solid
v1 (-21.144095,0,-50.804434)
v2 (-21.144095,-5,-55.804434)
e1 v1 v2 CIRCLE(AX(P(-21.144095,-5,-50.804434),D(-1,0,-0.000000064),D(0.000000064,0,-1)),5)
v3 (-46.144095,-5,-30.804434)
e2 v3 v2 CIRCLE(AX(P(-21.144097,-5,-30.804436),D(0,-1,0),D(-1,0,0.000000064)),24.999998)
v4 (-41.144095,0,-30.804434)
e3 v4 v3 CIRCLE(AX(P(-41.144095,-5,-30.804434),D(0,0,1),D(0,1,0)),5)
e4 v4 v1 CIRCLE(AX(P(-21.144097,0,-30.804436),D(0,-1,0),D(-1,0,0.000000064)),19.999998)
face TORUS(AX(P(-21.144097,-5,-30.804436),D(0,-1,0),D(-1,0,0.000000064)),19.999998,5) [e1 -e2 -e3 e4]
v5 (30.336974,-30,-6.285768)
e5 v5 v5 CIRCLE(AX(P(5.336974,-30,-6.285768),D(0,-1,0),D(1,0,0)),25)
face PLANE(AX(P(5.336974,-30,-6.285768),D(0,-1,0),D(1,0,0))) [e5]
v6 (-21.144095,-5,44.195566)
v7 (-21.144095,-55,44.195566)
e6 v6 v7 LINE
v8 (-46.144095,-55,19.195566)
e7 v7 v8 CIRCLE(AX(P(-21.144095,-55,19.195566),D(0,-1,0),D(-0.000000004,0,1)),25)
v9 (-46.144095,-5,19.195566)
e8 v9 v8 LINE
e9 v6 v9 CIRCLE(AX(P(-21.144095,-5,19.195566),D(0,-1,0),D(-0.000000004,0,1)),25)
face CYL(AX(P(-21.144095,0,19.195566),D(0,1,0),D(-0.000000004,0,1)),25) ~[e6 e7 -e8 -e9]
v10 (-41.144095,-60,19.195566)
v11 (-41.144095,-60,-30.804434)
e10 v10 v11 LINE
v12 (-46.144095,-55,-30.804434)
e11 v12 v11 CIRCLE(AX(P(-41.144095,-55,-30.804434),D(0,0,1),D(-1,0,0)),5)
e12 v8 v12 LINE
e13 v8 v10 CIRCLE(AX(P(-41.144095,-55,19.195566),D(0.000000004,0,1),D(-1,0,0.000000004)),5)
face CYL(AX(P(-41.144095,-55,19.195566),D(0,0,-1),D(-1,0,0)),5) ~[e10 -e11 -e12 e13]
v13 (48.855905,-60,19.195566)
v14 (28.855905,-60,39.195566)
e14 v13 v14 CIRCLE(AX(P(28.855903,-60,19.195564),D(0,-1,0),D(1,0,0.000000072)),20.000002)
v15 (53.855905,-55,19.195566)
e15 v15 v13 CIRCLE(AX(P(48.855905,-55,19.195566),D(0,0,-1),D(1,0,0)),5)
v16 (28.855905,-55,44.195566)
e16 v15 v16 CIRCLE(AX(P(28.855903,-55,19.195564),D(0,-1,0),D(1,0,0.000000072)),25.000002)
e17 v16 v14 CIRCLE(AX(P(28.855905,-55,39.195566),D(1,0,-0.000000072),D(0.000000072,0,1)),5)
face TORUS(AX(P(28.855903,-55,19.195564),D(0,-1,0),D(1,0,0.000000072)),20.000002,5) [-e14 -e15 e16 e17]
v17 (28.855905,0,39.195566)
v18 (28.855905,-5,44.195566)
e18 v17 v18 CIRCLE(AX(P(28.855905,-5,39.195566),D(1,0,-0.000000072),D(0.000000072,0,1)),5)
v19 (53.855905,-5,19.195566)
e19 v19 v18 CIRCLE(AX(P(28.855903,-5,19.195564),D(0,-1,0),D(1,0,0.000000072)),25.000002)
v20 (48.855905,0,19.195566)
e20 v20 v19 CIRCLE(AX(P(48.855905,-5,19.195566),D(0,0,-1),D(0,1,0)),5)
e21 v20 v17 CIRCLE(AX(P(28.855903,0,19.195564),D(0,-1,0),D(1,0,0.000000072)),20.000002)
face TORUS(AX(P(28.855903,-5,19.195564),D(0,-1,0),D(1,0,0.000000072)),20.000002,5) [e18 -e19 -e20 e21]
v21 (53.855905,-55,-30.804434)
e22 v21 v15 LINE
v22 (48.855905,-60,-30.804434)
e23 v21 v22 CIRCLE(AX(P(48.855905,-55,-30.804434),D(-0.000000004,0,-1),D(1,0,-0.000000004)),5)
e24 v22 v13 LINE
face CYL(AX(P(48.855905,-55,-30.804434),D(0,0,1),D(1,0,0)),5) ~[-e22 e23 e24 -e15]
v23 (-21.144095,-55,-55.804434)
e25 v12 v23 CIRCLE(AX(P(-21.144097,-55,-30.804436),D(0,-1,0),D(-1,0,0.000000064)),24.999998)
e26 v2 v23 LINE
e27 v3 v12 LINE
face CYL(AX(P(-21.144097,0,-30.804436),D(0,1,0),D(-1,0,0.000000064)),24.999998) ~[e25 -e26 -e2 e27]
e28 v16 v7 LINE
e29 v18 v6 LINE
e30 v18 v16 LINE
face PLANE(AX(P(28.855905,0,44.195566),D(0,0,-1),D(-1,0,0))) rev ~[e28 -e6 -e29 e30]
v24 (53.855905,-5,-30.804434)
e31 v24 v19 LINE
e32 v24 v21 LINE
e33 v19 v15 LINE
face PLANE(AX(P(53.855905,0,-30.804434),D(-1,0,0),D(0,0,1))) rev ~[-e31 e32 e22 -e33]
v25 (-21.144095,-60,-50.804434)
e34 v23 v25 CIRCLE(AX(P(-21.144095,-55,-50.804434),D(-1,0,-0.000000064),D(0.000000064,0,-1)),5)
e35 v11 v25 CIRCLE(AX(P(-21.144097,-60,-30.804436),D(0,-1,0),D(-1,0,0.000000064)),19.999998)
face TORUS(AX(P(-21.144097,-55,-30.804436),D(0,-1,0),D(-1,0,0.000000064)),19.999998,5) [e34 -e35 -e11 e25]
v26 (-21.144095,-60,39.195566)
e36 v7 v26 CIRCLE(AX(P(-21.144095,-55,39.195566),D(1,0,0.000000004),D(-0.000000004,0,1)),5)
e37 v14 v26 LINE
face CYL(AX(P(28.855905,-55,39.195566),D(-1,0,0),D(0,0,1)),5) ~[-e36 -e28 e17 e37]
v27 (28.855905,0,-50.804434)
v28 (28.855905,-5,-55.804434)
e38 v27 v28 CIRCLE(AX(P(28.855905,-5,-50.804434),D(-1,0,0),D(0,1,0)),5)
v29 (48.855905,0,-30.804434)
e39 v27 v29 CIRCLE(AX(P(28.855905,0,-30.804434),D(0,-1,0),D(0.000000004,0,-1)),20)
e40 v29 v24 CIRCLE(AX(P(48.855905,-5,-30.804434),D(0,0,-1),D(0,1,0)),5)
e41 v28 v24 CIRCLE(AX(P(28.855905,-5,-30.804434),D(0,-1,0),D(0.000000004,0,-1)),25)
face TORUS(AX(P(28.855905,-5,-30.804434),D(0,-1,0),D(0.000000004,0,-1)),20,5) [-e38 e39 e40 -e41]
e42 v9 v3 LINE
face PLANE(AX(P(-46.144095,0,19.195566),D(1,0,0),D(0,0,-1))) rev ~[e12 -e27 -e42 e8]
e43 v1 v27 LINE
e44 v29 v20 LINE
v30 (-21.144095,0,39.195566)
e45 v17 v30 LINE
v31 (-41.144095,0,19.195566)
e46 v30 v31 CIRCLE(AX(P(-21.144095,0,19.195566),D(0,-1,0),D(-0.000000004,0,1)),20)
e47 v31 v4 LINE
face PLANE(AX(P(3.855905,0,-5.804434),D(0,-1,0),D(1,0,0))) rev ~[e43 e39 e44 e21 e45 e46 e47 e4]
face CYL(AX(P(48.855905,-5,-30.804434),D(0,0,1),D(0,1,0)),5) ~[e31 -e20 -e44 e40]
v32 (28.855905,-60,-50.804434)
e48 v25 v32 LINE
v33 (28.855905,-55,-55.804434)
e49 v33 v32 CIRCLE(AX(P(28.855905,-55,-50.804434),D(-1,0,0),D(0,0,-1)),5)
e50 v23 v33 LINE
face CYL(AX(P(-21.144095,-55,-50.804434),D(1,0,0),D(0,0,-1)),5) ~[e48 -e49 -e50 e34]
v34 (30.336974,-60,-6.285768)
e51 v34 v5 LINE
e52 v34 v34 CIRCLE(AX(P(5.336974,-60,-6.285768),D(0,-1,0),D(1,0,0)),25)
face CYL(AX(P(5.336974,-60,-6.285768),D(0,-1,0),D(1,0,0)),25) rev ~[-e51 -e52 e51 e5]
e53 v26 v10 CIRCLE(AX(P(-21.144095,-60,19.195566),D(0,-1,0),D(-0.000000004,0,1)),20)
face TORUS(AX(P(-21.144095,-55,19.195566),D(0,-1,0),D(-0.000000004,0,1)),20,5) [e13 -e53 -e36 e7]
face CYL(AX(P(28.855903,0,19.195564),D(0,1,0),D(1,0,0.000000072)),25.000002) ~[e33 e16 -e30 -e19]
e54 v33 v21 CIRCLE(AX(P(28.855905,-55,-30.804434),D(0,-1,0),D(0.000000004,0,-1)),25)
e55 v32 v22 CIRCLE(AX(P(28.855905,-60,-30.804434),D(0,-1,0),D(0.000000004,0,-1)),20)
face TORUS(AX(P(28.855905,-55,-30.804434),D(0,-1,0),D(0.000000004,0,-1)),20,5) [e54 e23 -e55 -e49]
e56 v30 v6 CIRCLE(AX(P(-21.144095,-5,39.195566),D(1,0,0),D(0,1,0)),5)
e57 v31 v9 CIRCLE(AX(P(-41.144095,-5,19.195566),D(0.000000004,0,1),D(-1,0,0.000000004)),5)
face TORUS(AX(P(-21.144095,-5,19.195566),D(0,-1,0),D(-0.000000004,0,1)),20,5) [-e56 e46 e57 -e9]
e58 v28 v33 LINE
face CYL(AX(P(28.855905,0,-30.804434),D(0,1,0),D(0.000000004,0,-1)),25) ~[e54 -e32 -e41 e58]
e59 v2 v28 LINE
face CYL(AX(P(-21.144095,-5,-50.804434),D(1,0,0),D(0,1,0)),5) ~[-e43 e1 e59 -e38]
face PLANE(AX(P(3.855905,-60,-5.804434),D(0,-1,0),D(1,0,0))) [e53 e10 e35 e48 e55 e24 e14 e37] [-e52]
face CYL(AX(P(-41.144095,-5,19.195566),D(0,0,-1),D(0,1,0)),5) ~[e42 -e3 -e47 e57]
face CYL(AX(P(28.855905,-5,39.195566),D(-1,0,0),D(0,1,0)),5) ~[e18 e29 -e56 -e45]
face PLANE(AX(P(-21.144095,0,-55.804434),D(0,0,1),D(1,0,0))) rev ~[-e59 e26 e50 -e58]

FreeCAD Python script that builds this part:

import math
import FreeCAD as App
import Part
import Sketcher


def edges_at(feature, points):
    """Names of the edges that pass closest to the given points."""
    edges = feature.Shape.Edges
    near = lambda p: min(range(len(edges)), key=lambda i: edges[i].distToShape(Part.Vertex(*p))[0])
    return sorted({f"Edge{near(p) + 1}" for p in points})

doc = App.newDocument("Part")
body = doc.addObject("PartDesign::Body", "Body")

# Sketch on XZ plane
sketch1 = body.newObject("Sketcher::SketchObject", "Sketch")
sketch1.AttachmentSupport = (doc.getObject("XZ_Plane"), [""])
sketch1.MapMode = "FlatFace"
sketch1.addGeometry(Part.LineSegment(App.Vector(28.855905, 44.195566, 0), App.Vector(-21.144095, 44.195566, 0)), False)
sketch1.addGeometry(Part.ArcOfCircle(Part.Circle(App.Vector(-21.144095, 19.195566, 0), App.Vector(0, 0, 1), 25), math.radians(90), math.radians(180)), False)
sketch1.addGeometry(Part.LineSegment(App.Vector(-46.144095, 19.195566, 0), App.Vector(-46.144095, -30.804434, 0)), False)
sketch1.addGeometry(Part.ArcOfCircle(Part.Circle(App.Vector(-21.144097, -30.804436, 0), App.Vector(0, 0, 1), 24.999998), math.radians(179.999996), math.radians(270.000004)), False)
sketch1.addGeometry(Part.LineSegment(App.Vector(-21.144095, -55.804434, 0), App.Vector(28.855905, -55.804434, 0)), False)
sketch1.addGeometry(Part.ArcOfCircle(Part.Circle(App.Vector(28.855905, -30.804434, 0), App.Vector(0, 0, 1), 25), math.radians(-90), math.radians(0)), False)
sketch1.addGeometry(Part.LineSegment(App.Vector(53.855905, -30.804434, 0), App.Vector(53.855905, 19.195566, 0)), False)
sketch1.addGeometry(Part.ArcOfCircle(Part.Circle(App.Vector(28.855903, 19.195564, 0), App.Vector(0, 0, 1), 25.000002), math.radians(0.000004), math.radians(89.999996)), False)
sketch1.addConstraint(Sketcher.Constraint("Tangent", 0, 2, 1, 1))
sketch1.addConstraint(Sketcher.Constraint("Tangent", 1, 2, 2, 1))
sketch1.addConstraint(Sketcher.Constraint("Tangent", 2, 2, 3, 1))
sketch1.addConstraint(Sketcher.Constraint("Tangent", 3, 2, 4, 1))
sketch1.addConstraint(Sketcher.Constraint("Tangent", 4, 2, 5, 1))
sketch1.addConstraint(Sketcher.Constraint("Tangent", 5, 2, 6, 1))
sketch1.addConstraint(Sketcher.Constraint("Tangent", 6, 2, 7, 1))
sketch1.addConstraint(Sketcher.Constraint("Tangent", 7, 2, 0, 1))
sketch1.addConstraint(Sketcher.Constraint("Horizontal", 0))
sketch1.addConstraint(Sketcher.Constraint("Vertical", 2))
sketch1.addConstraint(Sketcher.Constraint("Horizontal", 4))
sketch1.addConstraint(Sketcher.Constraint("Vertical", 6))
sketch1.addConstraint(Sketcher.Constraint("Equal", 1, 3))
sketch1.addConstraint(Sketcher.Constraint("Equal", 3, 5))
sketch1.addConstraint(Sketcher.Constraint("Equal", 5, 7))
sketch1.addConstraint(Sketcher.Constraint("Equal", 4, 2))
sketch1.addConstraint(Sketcher.Constraint("Radius", 1, 25.0))
sketch1.addConstraint(Sketcher.Constraint("DistanceX", 0, 2, 0, 1, 50.0))
sketch1.addConstraint(Sketcher.Constraint("DistanceX", 1, 3, -1, 1, 21.144095))
sketch1.addConstraint(Sketcher.Constraint("DistanceY", -1, 1, 1, 3, 19.195566))
pad1 = body.newObject("PartDesign::Pad", "Pad")
pad1.Profile = sketch1
pad1.Length = 60
doc.recompute()

fillet = body.newObject("PartDesign::Fillet", "Fillet")
fillet.Base = (pad1, edges_at(pad1, [
    (-38.822, -60, 36.873),
    (3.856, -60, 44.196),
    (-46.144, -60, -5.804),
    (-38.822, -60, -48.482),
    (3.856, -60, -55.804),
    (46.534, -60, -48.482),
    (53.856, -60, -5.804),
    (46.534, -60, 36.873),
]))
fillet.Radius = 5
doc.recompute()

fillet2 = body.newObject("PartDesign::Fillet", "Fillet001")
fillet2.Base = (fillet, edges_at(fillet, [
    (53.856, 0, -5.804),
    (3.856, 0, 44.196),
    (-38.822, 0, 36.873),
    (-46.144, 0, -5.804),
    (-38.822, 0, -48.482),
    (3.856, 0, -55.804),
    (46.534, 0, -48.482),
    (46.534, 0, 36.873),
]))
fillet2.Radius = 5

# Sketch on XZ plane
sketch2 = body.newObject("Sketcher::SketchObject", "Sketch001")
sketch2.AttachmentSupport = (doc.getObject("XZ_Plane"), [""])
sketch2.MapMode = "FlatFace"
sketch2.addGeometry(Part.Circle(App.Vector(0, 0, 0), App.Vector(0, 0, 1), 25), False)
sketch2.addConstraint(Sketcher.Constraint("Coincident", 0, 3, -1, 1))
sketch2.addConstraint(Sketcher.Constraint("Diameter", 0, 50.0))
pocket1 = body.newObject("PartDesign::Pocket", "Pocket")
pocket1.Profile = sketch2
pocket1.Length = 30

# Sketch on XZ plane
sketch3 = body.newObject("Sketcher::SketchObject", "Sketch002")
sketch3.AttachmentSupport = (doc.getObject("XZ_Plane"), [""])
sketch3.MapMode = "FlatFace"
sketch3.AttachmentOffset = App.Placement(App.Vector(0, 0, 60), App.Rotation())
sketch3.addGeometry(Part.Circle(App.Vector(5.336974, -6.285768, 0), App.Vector(0, 0, 1), 25), False)
sketch3.addConstraint(Sketcher.Constraint("Diameter", 0, 50.0))
sketch3.addConstraint(Sketcher.Constraint("DistanceX", -1, 1, 0, 3, 5.336974))
sketch3.addConstraint(Sketcher.Constraint("DistanceY", 0, 3, -1, 1, 6.285768))
pocket2 = body.newObject("PartDesign::Pocket", "Pocket001")
pocket2.Profile = sketch3
pocket2.Length = 30

doc.recompute()
